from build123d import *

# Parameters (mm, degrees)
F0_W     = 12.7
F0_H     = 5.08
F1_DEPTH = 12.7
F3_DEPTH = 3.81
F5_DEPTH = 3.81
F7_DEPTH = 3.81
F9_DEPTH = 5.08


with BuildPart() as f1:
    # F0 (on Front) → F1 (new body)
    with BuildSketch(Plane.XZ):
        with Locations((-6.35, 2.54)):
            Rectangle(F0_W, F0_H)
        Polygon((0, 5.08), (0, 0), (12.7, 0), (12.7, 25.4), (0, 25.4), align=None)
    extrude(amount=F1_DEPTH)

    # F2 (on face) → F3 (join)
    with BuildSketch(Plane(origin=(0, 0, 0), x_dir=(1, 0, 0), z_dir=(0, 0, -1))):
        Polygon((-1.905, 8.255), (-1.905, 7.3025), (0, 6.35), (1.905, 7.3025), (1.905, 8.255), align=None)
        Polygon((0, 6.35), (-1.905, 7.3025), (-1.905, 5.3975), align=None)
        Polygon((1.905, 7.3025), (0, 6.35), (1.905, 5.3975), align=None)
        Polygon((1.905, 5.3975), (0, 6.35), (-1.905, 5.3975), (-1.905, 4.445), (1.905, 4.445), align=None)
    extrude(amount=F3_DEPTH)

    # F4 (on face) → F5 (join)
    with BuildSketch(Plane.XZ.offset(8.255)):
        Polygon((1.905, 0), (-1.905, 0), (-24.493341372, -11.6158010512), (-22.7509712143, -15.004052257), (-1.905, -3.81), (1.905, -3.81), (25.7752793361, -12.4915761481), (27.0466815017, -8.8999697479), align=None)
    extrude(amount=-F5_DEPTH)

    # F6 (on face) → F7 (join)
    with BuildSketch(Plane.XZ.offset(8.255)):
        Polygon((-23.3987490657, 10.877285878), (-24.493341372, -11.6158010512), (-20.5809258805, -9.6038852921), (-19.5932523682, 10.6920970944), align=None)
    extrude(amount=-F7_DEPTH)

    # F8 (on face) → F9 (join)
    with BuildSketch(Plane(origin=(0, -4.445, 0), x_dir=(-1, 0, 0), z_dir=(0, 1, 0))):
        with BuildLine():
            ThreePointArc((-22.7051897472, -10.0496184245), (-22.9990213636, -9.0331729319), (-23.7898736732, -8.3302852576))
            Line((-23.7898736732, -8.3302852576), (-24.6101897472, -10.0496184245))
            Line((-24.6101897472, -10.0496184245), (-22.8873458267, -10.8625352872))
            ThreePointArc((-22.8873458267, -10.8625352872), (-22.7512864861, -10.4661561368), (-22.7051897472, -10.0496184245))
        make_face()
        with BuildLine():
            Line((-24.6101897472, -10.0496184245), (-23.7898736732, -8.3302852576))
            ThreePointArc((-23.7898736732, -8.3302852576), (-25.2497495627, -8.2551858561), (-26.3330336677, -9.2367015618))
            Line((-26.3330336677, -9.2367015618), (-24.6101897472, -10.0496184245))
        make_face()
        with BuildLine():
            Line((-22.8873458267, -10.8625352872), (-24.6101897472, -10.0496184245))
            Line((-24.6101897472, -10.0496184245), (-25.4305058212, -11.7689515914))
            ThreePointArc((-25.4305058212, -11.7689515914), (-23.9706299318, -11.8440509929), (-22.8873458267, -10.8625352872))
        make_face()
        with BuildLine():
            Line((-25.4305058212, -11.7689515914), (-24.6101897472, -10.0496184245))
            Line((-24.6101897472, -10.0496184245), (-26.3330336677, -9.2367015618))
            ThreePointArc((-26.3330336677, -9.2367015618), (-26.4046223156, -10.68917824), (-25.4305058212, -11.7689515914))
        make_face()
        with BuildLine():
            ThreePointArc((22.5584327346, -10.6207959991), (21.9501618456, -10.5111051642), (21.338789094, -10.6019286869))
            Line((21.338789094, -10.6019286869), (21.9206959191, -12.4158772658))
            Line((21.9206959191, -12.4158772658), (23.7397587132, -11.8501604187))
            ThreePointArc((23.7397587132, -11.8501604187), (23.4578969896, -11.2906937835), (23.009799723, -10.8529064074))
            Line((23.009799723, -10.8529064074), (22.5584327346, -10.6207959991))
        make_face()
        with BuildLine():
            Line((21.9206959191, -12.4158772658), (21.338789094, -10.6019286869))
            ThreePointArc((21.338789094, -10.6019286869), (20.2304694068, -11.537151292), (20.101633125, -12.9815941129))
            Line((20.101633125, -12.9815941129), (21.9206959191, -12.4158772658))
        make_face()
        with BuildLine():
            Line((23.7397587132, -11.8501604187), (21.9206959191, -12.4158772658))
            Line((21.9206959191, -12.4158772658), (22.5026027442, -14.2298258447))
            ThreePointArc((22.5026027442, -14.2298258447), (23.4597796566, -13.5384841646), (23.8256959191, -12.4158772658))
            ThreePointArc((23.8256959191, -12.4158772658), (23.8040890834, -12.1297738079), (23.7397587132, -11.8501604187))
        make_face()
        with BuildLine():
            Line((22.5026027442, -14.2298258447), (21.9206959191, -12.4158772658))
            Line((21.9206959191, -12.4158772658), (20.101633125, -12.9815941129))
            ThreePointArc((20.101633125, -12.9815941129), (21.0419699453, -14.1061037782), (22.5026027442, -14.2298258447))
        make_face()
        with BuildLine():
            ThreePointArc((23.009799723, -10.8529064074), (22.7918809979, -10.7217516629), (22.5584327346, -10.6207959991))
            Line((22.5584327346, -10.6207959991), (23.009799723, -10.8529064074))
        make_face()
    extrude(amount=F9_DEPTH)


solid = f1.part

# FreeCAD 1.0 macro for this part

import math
import FreeCAD as App
import Part
import Sketcher
from FreeCAD import Vector
Q = App.Units.Quantity

doc = App.newDocument("Part")
body = doc.addObject("PartDesign::Body", "Body")

# Sketch on XZ plane
sketch1 = doc.addObject("Sketcher::SketchObject", "Sketch")
body.addObject(sketch1)
sketch1.AttachmentSupport = (doc.XZ_Plane, [""])
sketch1.MapMode = "FlatFace"
sketch1.addGeometry([
    Part.LineSegment(Vector(-13, 5, 0), Vector(-13, 0, 0)),  # 0
    Part.LineSegment(Vector(-13, 0, 0), Vector(13, 0, 0)),  # 1
    Part.LineSegment(Vector(13, 0, 0), Vector(13, 25, 0)),  # 2
    Part.LineSegment(Vector(13, 25, 0), Vector(0, 25, 0)),  # 3
    Part.LineSegment(Vector(0, 25, 0), Vector(0, 5, 0)),  # 4
    Part.LineSegment(Vector(0, 5, 0), Vector(-13, 5, 0)),  # 5
], False)
sketch1.addConstraint([
    Sketcher.Constraint("Coincident", 0, 2, 1, 1),
    Sketcher.Constraint("Coincident", 1, 2, 2, 1),
    Sketcher.Constraint("Coincident", 2, 2, 3, 1),
    Sketcher.Constraint("Coincident", 3, 2, 4, 1),
    Sketcher.Constraint("Coincident", 4, 2, 5, 1),
    Sketcher.Constraint("Coincident", 5, 2, 0, 1),
    Sketcher.Constraint("Vertical", 0),
    Sketcher.Constraint("Horizontal", 1),
    Sketcher.Constraint("Vertical", 2),
    Sketcher.Constraint("Horizontal", 3),
    Sketcher.Constraint("Vertical", 4),
    Sketcher.Constraint("Horizontal", 5),
    Sketcher.Constraint("Symmetric", 0, 2, 1, 2, -1, 1),
    Sketcher.Constraint("PointOnObject", 3, 2, -2),
    Sketcher.Constraint("Equal", 1, 2),
    Sketcher.Constraint("DistanceX", 1, 1, 1, 2, Q("1 in")),
    Sketcher.Constraint("DistanceY", 0, 2, 0, 1, Q("0.2 in")),
])
pad1 = doc.addObject("PartDesign::Pad", "Pad")
body.addObject(pad1)
pad1.Profile = sketch1
pad1.Length = Q("0.5 in")

# Sketch on XY plane
sketch2 = doc.addObject("Sketcher::SketchObject", "Sketch001")
body.addObject(sketch2)
sketch2.AttachmentSupport = (doc.XY_Plane, [""])
sketch2.MapMode = "FlatFace"
sketch2.addGeometry([
    Part.LineSegment(Vector(-1.9, -8.3, 0), Vector(-1.9, -4.4, 0)),
    Part.LineSegment(Vector(-1.9, -4.4, 0), Vector(1.9, -4.4, 0)),
    Part.LineSegment(Vector(1.9, -4.4, 0), Vector(1.9, -8.3, 0)),
    Part.LineSegment(Vector(1.9, -8.3, 0), Vector(-1.9, -8.3, 0)),
], False)
sketch2.addConstraint([
    Sketcher.Constraint("Coincident", 0, 2, 1, 1),
    Sketcher.Constraint("Coincident", 1, 2, 2, 1),
    Sketcher.Constraint("Coincident", 2, 2, 3, 1),
    Sketcher.Constraint("Coincident", 3, 2, 0, 1),
    Sketcher.Constraint("Vertical", 0),
    Sketcher.Constraint("Horizontal", 1),
    Sketcher.Constraint("Vertical", 2),
    Sketcher.Constraint("Horizontal", 3),
    Sketcher.Constraint("Equal", 3, 0),
    Sketcher.Constraint("DistanceX", 1, 1, 1, 2, Q("0.15 in")),
    Sketcher.Constraint("DistanceX", 0, 2, -1, 1, Q("0.075 in")),
    Sketcher.Constraint("DistanceY", 0, 2, -1, 1, Q("0.175 in")),
])
pad2 = doc.addObject("PartDesign::Pad", "Pad001")
body.addObject(pad2)
pad2.Profile = sketch2
pad2.Length = Q("0.15 in")
pad2.Reversed = True

# Sketch on XZ plane
sketch3 = doc.addObject("Sketcher::SketchObject", "Sketch002")
body.addObject(sketch3)
sketch3.AttachmentSupport = (doc.XZ_Plane, [""])
sketch3.MapMode = "FlatFace"
sketch3.AttachmentOffset = App.Placement(Vector(0, 0, 0.325 * 25.4), App.Rotation())
sketch3.addGeometry([
    Part.LineSegment(Vector(1.9, 0, 0), Vector(-1.9, 0, 0)),  # 0
    Part.LineSegment(Vector(-1.9, 0, 0), Vector(-24.5, -11.6, 0)),  # 1
    Part.LineSegment(Vector(-24.5, -11.6, 0), Vector(-22.8, -15, 0)),  # 2
    Part.LineSegment(Vector(-22.8, -15, 0), Vector(-1.9, -3.8, 0)),  # 3
    Part.LineSegment(Vector(-1.9, -3.8, 0), Vector(1.9, -3.8, 0)),  # 4
    Part.LineSegment(Vector(1.9, -3.8, 0), Vector(25.8, -12.5, 0)),  # 5
    Part.LineSegment(Vector(25.8, -12.5, 0), Vector(27, -8.9, 0)),  # 6
    Part.LineSegment(Vector(27, -8.9, 0), Vector(1.9, 0, 0)),  # 7
], False)
sketch3.addConstraint([
    Sketcher.Constraint("Coincident", 0, 2, 1, 1),
    Sketcher.Constraint("Coincident", 1, 2, 2, 1),
    Sketcher.Constraint("Coincident", 2, 2, 3, 1),
    Sketcher.Constraint("Coincident", 3, 2, 4, 1),
    Sketcher.Constraint("Coincident", 4, 2, 5, 1),
    Sketcher.Constraint("Coincident", 5, 2, 6, 1),
    Sketcher.Constraint("Coincident", 6, 2, 7, 1),
    Sketcher.Constraint("Coincident", 7, 2, 0, 1),
    Sketcher.Constraint("Horizontal", 0),
    Sketcher.Constraint("Horizontal", 4),
    Sketcher.Constraint("Symmetric", 0, 2, 7, 2, -1, 1),
    Sketcher.Constraint("Perpendicular", 1, 2),
    Sketcher.Constraint("Perpendicular", 6, 7),
    Sketcher.Constraint("Vertical", 0, 2, 3, 2),
    Sketcher.Constraint("Vertical", 4, 2, 7, 2),
    Sketcher.Constraint("Equal", 1, 5),
    Sketcher.Constraint("Equal", 2, 6),
    Sketcher.Constraint("Distance", 1, Q("1 in")),
    Sketcher.Constraint("DistanceX", 0, 2, 0, 1, Q("0.15 in")),
    Sketcher.Constraint("Distance", 2, Q("0.15 in")),
    Sketcher.Constraint("DistanceY", 3, 2, -1, 1, Q("0.15 in")),
    Sketcher.Constraint("DistanceY", 1, 2, -1, 1, 11.615801),
    Sketcher.Constraint("DistanceX", -1, 1, 5, 2, 25.775279),
])
pad3 = doc.addObject("PartDesign::Pad", "Pad002")
body.addObject(pad3)
pad3.Profile = sketch3
pad3.Length = Q("0.15 in")
pad3.Reversed = True

# Sketch on XZ plane
sketch4 = doc.addObject("Sketcher::SketchObject", "Sketch003")
body.addObject(sketch4)
sketch4.AttachmentSupport = (doc.XZ_Plane, [""])
sketch4.MapMode = "FlatFace"
sketch4.AttachmentOffset = App.Placement(Vector(0, 0, 0.325 * 25.4), App.Rotation())
sketch4.addGeometry([
    Part.LineSegment(Vector(-23.4, 10.9, 0), Vector(-24.5, -11.6, 0)),
    Part.LineSegment(Vector(-24.5, -11.6, 0), Vector(-20.6, -9.6, 0)),
    Part.LineSegment(Vector(-20.6, -9.6, 0), Vector(-19.6, 10.7, 0)),
    Part.LineSegment(Vector(-19.6, 10.7, 0), Vector(-23.4, 10.9, 0)),
], False)
sketch4.addConstraint([
    Sketcher.Constraint("Coincident", 0, 2, 1, 1),
    Sketcher.Constraint("Coincident", 1, 2, 2, 1),
    Sketcher.Constraint("Coincident", 2, 2, 3, 1),
    Sketcher.Constraint("Coincident", 3, 2, 0, 1),
    Sketcher.Constraint("Parallel", 0, 2),
    Sketcher.Constraint("Perpendicular", 2, 3),
    Sketcher.Constraint("Distance", 2, Q("0.8 in")),
    Sketcher.Constraint("Distance", 3, Q("0.15 in")),
    Sketcher.Constraint("DistanceY", 0, 2, -1, 1, 11.615801),
    Sketcher.Constraint("DistanceY", 0, 2, 2, 2, 22.307898),
    Sketcher.Constraint("Distance", 1, 4.399409),
    Sketcher.Constraint("DistanceX", 0, 2, -1, 1, 24.493341),
])
pad4 = doc.addObject("PartDesign::Pad", "Pad003")
body.addObject(pad4)
pad4.Profile = sketch4
pad4.Length = Q("0.15 in")
pad4.Reversed = True

# Sketch on XZ plane
sketch5 = doc.addObject("Sketcher::SketchObject", "Sketch004")
body.addObject(sketch5)
sketch5.AttachmentSupport = (doc.XZ_Plane, [""])
sketch5.MapMode = "FlatFace"
sketch5.AttachmentOffset = App.Placement(Vector(0, 0, 0.175 * 25.4), App.Rotation())
sketch5.addGeometry([
    Part.ArcOfCircle(Part.Circle(Vector(24.6, -10, 0), Vector(0, 0, 1), 1.9), math.radians(116), math.radians(180)),  # 0
    Part.ArcOfCircle(Part.Circle(Vector(24.6, -10, 0), Vector(0, 0, 1), 1.9), math.radians(25), math.radians(116)),  # 1
    Part.ArcOfCircle(Part.Circle(Vector(24.6, -10, 0), Vector(0, 0, 1), 1.9), math.radians(-64), math.radians(25)),  # 2
    Part.ArcOfCircle(Part.Circle(Vector(24.6, -10, 0), Vector(0, 0, 1), 1.9), math.radians(-155), math.radians(-64)),  # 3
    Part.ArcOfCircle(Part.Circle(Vector(24.6, -10, 0), Vector(0, 0, 1), 1.9), math.radians(-180), math.radians(-155)),  # 4
    Part.ArcOfCircle(Part.Circle(Vector(-21.9, -12.4, 0), Vector(0, 0, 1), 1.9), math.radians(72), math.radians(110)),  # 5
    Part.ArcOfCircle(Part.Circle(Vector(-21.9, -12.4, 0), Vector(0, 0, 1), 1.9), math.radians(-17), math.radians(72)),  # 6
    Part.ArcOfCircle(Part.Circle(Vector(-21.9, -12.4, 0), Vector(0, 0, 1), 1.9), math.radians(-108), math.radians(-17)),  # 7
    Part.ArcOfCircle(Part.Circle(Vector(-21.9, -12.4, 0), Vector(0, 0, 1), 1.9), math.radians(180), math.radians(252)),  # 8
    Part.ArcOfCircle(Part.Circle(Vector(-21.9, -12.4, 0), Vector(0, 0, 1), 1.9), math.radians(162.72), math.radians(180)),  # 9
    Part.ArcOfCircle(Part.Circle(Vector(-21.9, -12.4, 0), Vector(0, 0, 1), 1.9), math.radians(125), math.radians(163)),  # 10
    Part.ArcOfCircle(Part.Circle(Vector(-21.9, -12.4, 0), Vector(0, 0, 1), 1.9), math.radians(109.56), math.radians(124.87)),  # 11
], False)
sketch5.addConstraint([
    Sketcher.Constraint("Tangent", 0, 1, 1, 2),
    Sketcher.Constraint("Tangent", 1, 1, 2, 2),
    Sketcher.Constraint("Tangent", 2, 1, 3, 2),
    Sketcher.Constraint("Tangent", 3, 1, 4, 2),
    Sketcher.Constraint("Tangent", 4, 1, 0, 2),
    Sketcher.Constraint("Tangent", 5, 1, 6, 2),
    Sketcher.Constraint("Tangent", 6, 1, 7, 2),
    Sketcher.Constraint("Tangent", 7, 1, 8, 2),
    Sketcher.Constraint("Tangent", 8, 1, 9, 2),
    Sketcher.Constraint("Tangent", 9, 1, 10, 2),
    Sketcher.Constraint("Tangent", 10, 1, 11, 2),
    Sketcher.Constraint("Tangent", 11, 1, 5, 2),
    Sketcher.Constraint("Coincident", 2, 3, 0, 3),
    Sketcher.Constraint("Coincident", 7, 3, 5, 3),
    Sketcher.Constraint("Coincident", 9, 3, 5, 3),
    Sketcher.Constraint("Equal", 4, 5),
    Sketcher.Constraint("Horizontal", 3, 3, 4, 1),
    Sketcher.Constraint("Horizontal", 11, 3, 8, 1),
    Sketcher.Constraint("Radius", 0, Q("0.075 in")),
    Sketcher.Constraint("DistanceY", 9, 1, 11, 1, Q("0.0484002 in")),
    Sketcher.Constraint("DistanceY", 1, 1, -1, 1, 9.236702),
    Sketcher.Constraint("DistanceX", 10, 1, -1, 1, 23.0098),
    Sketcher.Constraint("DistanceX", -1, 1, 0, 3, 24.61019),
    Sketcher.Constraint("DistanceY", 0, 3, -1, 1, 10.049618),
    Sketcher.Constraint("DistanceY", 2, 1, -1, 1, 11.768952),
    Sketcher.Constraint("DistanceX", 5, 1, -1, 1, 21.338789),
    Sketcher.Constraint("DistanceY", 5, 1, -1, 1, 10.601929),
    Sketcher.Constraint("DistanceX", 9, 1, -1, 1, 23.739759),
    Sketcher.Constraint("DistanceY", 9, 1, -1, 1, 11.85016),
    Sketcher.Constraint("DistanceY", 7, 1, 5, 3, 1.813949),
    Sketcher.Constraint("DistanceX", -1, 1, 0, 1, 23.789874),
    Sketcher.Constraint("DistanceX", -1, 1, 3, 1, 22.887346),
    Sketcher.Constraint("DistanceX", 6, 1, -1, 1, 20.101633),
])
pad5 = doc.addObject("PartDesign::Pad", "Pad004")
body.addObject(pad5)
pad5.Profile = sketch5
pad5.Length = Q("0.2 in")
pad5.Reversed = True

doc.recompute()
